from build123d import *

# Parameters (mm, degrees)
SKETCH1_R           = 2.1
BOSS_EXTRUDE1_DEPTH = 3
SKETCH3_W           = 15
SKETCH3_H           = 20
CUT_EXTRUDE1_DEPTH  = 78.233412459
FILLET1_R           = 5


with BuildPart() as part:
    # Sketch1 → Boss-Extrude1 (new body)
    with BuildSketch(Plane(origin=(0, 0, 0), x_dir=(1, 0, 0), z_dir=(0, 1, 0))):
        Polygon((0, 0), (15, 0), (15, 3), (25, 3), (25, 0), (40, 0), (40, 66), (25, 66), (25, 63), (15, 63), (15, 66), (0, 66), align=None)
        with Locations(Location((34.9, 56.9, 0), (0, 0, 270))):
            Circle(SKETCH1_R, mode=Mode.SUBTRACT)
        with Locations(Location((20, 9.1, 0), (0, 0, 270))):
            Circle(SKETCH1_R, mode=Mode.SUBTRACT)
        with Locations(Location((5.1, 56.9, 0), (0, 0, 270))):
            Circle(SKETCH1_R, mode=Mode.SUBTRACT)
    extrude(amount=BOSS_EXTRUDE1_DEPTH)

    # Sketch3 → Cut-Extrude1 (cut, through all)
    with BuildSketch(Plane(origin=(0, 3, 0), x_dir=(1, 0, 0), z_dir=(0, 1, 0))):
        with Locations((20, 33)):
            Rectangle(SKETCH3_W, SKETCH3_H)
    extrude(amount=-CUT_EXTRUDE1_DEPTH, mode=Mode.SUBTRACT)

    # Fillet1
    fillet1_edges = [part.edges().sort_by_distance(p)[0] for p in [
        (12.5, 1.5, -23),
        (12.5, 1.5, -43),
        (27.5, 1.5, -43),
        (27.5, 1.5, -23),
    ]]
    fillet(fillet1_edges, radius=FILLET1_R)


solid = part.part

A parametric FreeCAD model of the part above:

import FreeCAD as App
import Part
import Sketcher

V = App.Vector


def edges_at(feature, points):
    """Names of the edges that pass closest to the given points."""
    edges = feature.Shape.Edges
    near = lambda p: min(range(len(edges)), key=lambda i: edges[i].distToShape(Part.Vertex(*p))[0])
    return sorted({f"Edge{near(p) + 1}" for p in points})


def add_polygon(sketch, points):
    """Adds a closed chain of lines whose ends are joined by coincident constraints."""
    first, n = sketch.GeometryCount, len(points)
    for a, b in zip(points, points[1:] + points[:1]):
        sketch.addGeometry(Part.LineSegment(App.Vector(*a, 0), App.Vector(*b, 0)), False)
    for i in range(n):
        sketch.addConstraint(Sketcher.Constraint("Coincident", first + i, 2, first + (i + 1) % n, 1))

doc = App.newDocument("Part")
params = doc.addObject("Spreadsheet::Sheet", "Params")
for row, (alias, value) in enumerate([
    ("sketch1_diameter", "4.2 mm"),
    ("sketch1_width", "15 mm"),
    ("sketch1_width2", "10 mm"),
    ("sketch1_height", "3 mm"),
    ("sketch1_height2", "66 mm"),
    ("pad1_length", "3 mm"),
    ("sketch2_width", "15 mm"),
    ("sketch2_height", "20 mm"),
    ("fillet_radius", "5 mm"),
], start=1):
    params.set(f"A{row}", alias)
    params.set(f"B{row}", "=" + value)
    params.setAlias(f"B{row}", alias)

body = doc.addObject("PartDesign::Body", "Body")

sketch1 = body.newObject("Sketcher::SketchObject", "Sketch")
sketch1.AttachmentSupport = (doc.getObject("XZ_Plane"), [""])
sketch1.MapMode = "FlatFace"
add_polygon(sketch1, [(0, 0), (15, 0), (15, -3), (25, -3), (25, 0), (40, 0), (40, -66), (25, -66), (25, -63), (15, -63), (15, -66), (0, -66)])
sketch1.addGeometry(Part.Circle(V(20, -9.1, 0), V(0, 0, 1), 2.1), False)
sketch1.addGeometry(Part.Circle(V(5.1, -56.9, 0), V(0, 0, 1), 2.1), False)
sketch1.addGeometry(Part.Circle(V(34.9, -56.9, 0), V(0, 0, 1), 2.1), False)
sketch1.addConstraint(Sketcher.Constraint("Horizontal", 0))
sketch1.addConstraint(Sketcher.Constraint("Vertical", 1))
sketch1.addConstraint(Sketcher.Constraint("Horizontal", 2))
sketch1.addConstraint(Sketcher.Constraint("Vertical", 3))
sketch1.addConstraint(Sketcher.Constraint("Horizontal", 4))
sketch1.addConstraint(Sketcher.Constraint("Vertical", 5))
sketch1.addConstraint(Sketcher.Constraint("Horizontal", 6))
sketch1.addConstraint(Sketcher.Constraint("Vertical", 7))
sketch1.addConstraint(Sketcher.Constraint("Horizontal", 8))
sketch1.addConstraint(Sketcher.Constraint("Vertical", 9))
sketch1.addConstraint(Sketcher.Constraint("Horizontal", 10))
sketch1.addConstraint(Sketcher.Constraint("Vertical", 11))
sketch1.addConstraint(Sketcher.Constraint("Coincident", 11, 2, -1, 1))
sketch1.addConstraint(Sketcher.Constraint("Equal", 12, 13))
sketch1.addConstraint(Sketcher.Constraint("Equal", 13, 14))
sketch1.addConstraint(Sketcher.Constraint("PointOnObject", 3, 2, -1))
sketch1.addConstraint(Sketcher.Constraint("Horizontal", 13, 3, 14, 3))
sketch1.addConstraint(Sketcher.Constraint("Horizontal", 6, 2, 9, 2))
sketch1.addConstraint(Sketcher.Constraint("Vertical", 3, 2, 6, 2))
sketch1.addConstraint(Sketcher.Constraint("Vertical", 1, 2, 8, 2))
sketch1.addConstraint(Sketcher.Constraint("Equal", 0, 4))
sketch1.addConstraint(Sketcher.Constraint("Equal", 3, 7))
sketch1.addConstraint(Sketcher.Constraint("Diameter", 12, 4.2))
sketch1.addConstraint(Sketcher.Constraint("DistanceX", 0, 1, 0, 2, 15.0))
sketch1.addConstraint(Sketcher.Constraint("DistanceX", 2, 1, 2, 2, 10.0))
sketch1.addConstraint(Sketcher.Constraint("DistanceY", 1, 2, 1, 1, 3.0))
sketch1.addConstraint(Sketcher.Constraint("DistanceY", 5, 2, 5, 1, 66.0))
sketch1.addConstraint(Sketcher.Constraint("DistanceX", -1, 1, 12, 3, 20.0))
sketch1.addConstraint(Sketcher.Constraint("DistanceY", 12, 3, -1, 1, 9.1))
sketch1.addConstraint(Sketcher.Constraint("DistanceX", -1, 1, 13, 3, 5.1))
sketch1.addConstraint(Sketcher.Constraint("DistanceY", 13, 3, -1, 1, 56.9))
sketch1.addConstraint(Sketcher.Constraint("DistanceX", -1, 1, 14, 3, 34.9))
sketch1.setExpression("Constraints[34]", "Params.sketch1_diameter")
sketch1.setExpression("Constraints[35]", "Params.sketch1_width")
sketch1.setExpression("Constraints[36]", "Params.sketch1_width2")
sketch1.setExpression("Constraints[37]", "Params.sketch1_height")
sketch1.setExpression("Constraints[38]", "Params.sketch1_height2")
pad1 = body.newObject("PartDesign::Pad", "Pad")
pad1.Profile = sketch1
pad1.setExpression("Length", "Params.pad1_length")
pad1.Reversed = True

sketch2 = body.newObject("Sketcher::SketchObject", "Sketch001")
sketch2.AttachmentSupport = (doc.getObject("XZ_Plane"), [""])
sketch2.MapMode = "FlatFace"
sketch2.AttachmentOffset = App.Placement(V(0, 0, -3), App.Rotation())
add_polygon(sketch2, [(12.5, -43), (12.5, -23), (27.5, -23), (27.5, -43)])
sketch2.addConstraint(Sketcher.Constraint("Vertical", 0))
sketch2.addConstraint(Sketcher.Constraint("Horizontal", 1))
sketch2.addConstraint(Sketcher.Constraint("Vertical", 2))
sketch2.addConstraint(Sketcher.Constraint("Horizontal", 3))
sketch2.addConstraint(Sketcher.Constraint("DistanceX", 1, 1, 1, 2, 15.0))
sketch2.addConstraint(Sketcher.Constraint("DistanceY", 0, 1, 0, 2, 20.0))
sketch2.addConstraint(Sketcher.Constraint("DistanceY", 0, 2, -1, 1, 23.0))
sketch2.addConstraint(Sketcher.Constraint("DistanceX", -1, 1, 0, 2, 12.5))
sketch2.setExpression("Constraints[8]", "Params.sketch2_width")
sketch2.setExpression("Constraints[9]", "Params.sketch2_height")
pocket1 = body.newObject("PartDesign::Pocket", "Pocket")
pocket1.Profile = sketch2
pocket1.Type = "ThroughAll"
pocket1.Reversed = True
doc.recompute()

fillet = body.newObject("PartDesign::Fillet", "Fillet")
fillet.Base = (pocket1, edges_at(pocket1, [
    (12.5, 1.5, -23),
    (12.5, 1.5, -43),
    (27.5, 1.5, -43),
    (27.5, 1.5, -23),
]))
fillet.setExpression("Radius", "Params.fillet_radius")

doc.recompute()
